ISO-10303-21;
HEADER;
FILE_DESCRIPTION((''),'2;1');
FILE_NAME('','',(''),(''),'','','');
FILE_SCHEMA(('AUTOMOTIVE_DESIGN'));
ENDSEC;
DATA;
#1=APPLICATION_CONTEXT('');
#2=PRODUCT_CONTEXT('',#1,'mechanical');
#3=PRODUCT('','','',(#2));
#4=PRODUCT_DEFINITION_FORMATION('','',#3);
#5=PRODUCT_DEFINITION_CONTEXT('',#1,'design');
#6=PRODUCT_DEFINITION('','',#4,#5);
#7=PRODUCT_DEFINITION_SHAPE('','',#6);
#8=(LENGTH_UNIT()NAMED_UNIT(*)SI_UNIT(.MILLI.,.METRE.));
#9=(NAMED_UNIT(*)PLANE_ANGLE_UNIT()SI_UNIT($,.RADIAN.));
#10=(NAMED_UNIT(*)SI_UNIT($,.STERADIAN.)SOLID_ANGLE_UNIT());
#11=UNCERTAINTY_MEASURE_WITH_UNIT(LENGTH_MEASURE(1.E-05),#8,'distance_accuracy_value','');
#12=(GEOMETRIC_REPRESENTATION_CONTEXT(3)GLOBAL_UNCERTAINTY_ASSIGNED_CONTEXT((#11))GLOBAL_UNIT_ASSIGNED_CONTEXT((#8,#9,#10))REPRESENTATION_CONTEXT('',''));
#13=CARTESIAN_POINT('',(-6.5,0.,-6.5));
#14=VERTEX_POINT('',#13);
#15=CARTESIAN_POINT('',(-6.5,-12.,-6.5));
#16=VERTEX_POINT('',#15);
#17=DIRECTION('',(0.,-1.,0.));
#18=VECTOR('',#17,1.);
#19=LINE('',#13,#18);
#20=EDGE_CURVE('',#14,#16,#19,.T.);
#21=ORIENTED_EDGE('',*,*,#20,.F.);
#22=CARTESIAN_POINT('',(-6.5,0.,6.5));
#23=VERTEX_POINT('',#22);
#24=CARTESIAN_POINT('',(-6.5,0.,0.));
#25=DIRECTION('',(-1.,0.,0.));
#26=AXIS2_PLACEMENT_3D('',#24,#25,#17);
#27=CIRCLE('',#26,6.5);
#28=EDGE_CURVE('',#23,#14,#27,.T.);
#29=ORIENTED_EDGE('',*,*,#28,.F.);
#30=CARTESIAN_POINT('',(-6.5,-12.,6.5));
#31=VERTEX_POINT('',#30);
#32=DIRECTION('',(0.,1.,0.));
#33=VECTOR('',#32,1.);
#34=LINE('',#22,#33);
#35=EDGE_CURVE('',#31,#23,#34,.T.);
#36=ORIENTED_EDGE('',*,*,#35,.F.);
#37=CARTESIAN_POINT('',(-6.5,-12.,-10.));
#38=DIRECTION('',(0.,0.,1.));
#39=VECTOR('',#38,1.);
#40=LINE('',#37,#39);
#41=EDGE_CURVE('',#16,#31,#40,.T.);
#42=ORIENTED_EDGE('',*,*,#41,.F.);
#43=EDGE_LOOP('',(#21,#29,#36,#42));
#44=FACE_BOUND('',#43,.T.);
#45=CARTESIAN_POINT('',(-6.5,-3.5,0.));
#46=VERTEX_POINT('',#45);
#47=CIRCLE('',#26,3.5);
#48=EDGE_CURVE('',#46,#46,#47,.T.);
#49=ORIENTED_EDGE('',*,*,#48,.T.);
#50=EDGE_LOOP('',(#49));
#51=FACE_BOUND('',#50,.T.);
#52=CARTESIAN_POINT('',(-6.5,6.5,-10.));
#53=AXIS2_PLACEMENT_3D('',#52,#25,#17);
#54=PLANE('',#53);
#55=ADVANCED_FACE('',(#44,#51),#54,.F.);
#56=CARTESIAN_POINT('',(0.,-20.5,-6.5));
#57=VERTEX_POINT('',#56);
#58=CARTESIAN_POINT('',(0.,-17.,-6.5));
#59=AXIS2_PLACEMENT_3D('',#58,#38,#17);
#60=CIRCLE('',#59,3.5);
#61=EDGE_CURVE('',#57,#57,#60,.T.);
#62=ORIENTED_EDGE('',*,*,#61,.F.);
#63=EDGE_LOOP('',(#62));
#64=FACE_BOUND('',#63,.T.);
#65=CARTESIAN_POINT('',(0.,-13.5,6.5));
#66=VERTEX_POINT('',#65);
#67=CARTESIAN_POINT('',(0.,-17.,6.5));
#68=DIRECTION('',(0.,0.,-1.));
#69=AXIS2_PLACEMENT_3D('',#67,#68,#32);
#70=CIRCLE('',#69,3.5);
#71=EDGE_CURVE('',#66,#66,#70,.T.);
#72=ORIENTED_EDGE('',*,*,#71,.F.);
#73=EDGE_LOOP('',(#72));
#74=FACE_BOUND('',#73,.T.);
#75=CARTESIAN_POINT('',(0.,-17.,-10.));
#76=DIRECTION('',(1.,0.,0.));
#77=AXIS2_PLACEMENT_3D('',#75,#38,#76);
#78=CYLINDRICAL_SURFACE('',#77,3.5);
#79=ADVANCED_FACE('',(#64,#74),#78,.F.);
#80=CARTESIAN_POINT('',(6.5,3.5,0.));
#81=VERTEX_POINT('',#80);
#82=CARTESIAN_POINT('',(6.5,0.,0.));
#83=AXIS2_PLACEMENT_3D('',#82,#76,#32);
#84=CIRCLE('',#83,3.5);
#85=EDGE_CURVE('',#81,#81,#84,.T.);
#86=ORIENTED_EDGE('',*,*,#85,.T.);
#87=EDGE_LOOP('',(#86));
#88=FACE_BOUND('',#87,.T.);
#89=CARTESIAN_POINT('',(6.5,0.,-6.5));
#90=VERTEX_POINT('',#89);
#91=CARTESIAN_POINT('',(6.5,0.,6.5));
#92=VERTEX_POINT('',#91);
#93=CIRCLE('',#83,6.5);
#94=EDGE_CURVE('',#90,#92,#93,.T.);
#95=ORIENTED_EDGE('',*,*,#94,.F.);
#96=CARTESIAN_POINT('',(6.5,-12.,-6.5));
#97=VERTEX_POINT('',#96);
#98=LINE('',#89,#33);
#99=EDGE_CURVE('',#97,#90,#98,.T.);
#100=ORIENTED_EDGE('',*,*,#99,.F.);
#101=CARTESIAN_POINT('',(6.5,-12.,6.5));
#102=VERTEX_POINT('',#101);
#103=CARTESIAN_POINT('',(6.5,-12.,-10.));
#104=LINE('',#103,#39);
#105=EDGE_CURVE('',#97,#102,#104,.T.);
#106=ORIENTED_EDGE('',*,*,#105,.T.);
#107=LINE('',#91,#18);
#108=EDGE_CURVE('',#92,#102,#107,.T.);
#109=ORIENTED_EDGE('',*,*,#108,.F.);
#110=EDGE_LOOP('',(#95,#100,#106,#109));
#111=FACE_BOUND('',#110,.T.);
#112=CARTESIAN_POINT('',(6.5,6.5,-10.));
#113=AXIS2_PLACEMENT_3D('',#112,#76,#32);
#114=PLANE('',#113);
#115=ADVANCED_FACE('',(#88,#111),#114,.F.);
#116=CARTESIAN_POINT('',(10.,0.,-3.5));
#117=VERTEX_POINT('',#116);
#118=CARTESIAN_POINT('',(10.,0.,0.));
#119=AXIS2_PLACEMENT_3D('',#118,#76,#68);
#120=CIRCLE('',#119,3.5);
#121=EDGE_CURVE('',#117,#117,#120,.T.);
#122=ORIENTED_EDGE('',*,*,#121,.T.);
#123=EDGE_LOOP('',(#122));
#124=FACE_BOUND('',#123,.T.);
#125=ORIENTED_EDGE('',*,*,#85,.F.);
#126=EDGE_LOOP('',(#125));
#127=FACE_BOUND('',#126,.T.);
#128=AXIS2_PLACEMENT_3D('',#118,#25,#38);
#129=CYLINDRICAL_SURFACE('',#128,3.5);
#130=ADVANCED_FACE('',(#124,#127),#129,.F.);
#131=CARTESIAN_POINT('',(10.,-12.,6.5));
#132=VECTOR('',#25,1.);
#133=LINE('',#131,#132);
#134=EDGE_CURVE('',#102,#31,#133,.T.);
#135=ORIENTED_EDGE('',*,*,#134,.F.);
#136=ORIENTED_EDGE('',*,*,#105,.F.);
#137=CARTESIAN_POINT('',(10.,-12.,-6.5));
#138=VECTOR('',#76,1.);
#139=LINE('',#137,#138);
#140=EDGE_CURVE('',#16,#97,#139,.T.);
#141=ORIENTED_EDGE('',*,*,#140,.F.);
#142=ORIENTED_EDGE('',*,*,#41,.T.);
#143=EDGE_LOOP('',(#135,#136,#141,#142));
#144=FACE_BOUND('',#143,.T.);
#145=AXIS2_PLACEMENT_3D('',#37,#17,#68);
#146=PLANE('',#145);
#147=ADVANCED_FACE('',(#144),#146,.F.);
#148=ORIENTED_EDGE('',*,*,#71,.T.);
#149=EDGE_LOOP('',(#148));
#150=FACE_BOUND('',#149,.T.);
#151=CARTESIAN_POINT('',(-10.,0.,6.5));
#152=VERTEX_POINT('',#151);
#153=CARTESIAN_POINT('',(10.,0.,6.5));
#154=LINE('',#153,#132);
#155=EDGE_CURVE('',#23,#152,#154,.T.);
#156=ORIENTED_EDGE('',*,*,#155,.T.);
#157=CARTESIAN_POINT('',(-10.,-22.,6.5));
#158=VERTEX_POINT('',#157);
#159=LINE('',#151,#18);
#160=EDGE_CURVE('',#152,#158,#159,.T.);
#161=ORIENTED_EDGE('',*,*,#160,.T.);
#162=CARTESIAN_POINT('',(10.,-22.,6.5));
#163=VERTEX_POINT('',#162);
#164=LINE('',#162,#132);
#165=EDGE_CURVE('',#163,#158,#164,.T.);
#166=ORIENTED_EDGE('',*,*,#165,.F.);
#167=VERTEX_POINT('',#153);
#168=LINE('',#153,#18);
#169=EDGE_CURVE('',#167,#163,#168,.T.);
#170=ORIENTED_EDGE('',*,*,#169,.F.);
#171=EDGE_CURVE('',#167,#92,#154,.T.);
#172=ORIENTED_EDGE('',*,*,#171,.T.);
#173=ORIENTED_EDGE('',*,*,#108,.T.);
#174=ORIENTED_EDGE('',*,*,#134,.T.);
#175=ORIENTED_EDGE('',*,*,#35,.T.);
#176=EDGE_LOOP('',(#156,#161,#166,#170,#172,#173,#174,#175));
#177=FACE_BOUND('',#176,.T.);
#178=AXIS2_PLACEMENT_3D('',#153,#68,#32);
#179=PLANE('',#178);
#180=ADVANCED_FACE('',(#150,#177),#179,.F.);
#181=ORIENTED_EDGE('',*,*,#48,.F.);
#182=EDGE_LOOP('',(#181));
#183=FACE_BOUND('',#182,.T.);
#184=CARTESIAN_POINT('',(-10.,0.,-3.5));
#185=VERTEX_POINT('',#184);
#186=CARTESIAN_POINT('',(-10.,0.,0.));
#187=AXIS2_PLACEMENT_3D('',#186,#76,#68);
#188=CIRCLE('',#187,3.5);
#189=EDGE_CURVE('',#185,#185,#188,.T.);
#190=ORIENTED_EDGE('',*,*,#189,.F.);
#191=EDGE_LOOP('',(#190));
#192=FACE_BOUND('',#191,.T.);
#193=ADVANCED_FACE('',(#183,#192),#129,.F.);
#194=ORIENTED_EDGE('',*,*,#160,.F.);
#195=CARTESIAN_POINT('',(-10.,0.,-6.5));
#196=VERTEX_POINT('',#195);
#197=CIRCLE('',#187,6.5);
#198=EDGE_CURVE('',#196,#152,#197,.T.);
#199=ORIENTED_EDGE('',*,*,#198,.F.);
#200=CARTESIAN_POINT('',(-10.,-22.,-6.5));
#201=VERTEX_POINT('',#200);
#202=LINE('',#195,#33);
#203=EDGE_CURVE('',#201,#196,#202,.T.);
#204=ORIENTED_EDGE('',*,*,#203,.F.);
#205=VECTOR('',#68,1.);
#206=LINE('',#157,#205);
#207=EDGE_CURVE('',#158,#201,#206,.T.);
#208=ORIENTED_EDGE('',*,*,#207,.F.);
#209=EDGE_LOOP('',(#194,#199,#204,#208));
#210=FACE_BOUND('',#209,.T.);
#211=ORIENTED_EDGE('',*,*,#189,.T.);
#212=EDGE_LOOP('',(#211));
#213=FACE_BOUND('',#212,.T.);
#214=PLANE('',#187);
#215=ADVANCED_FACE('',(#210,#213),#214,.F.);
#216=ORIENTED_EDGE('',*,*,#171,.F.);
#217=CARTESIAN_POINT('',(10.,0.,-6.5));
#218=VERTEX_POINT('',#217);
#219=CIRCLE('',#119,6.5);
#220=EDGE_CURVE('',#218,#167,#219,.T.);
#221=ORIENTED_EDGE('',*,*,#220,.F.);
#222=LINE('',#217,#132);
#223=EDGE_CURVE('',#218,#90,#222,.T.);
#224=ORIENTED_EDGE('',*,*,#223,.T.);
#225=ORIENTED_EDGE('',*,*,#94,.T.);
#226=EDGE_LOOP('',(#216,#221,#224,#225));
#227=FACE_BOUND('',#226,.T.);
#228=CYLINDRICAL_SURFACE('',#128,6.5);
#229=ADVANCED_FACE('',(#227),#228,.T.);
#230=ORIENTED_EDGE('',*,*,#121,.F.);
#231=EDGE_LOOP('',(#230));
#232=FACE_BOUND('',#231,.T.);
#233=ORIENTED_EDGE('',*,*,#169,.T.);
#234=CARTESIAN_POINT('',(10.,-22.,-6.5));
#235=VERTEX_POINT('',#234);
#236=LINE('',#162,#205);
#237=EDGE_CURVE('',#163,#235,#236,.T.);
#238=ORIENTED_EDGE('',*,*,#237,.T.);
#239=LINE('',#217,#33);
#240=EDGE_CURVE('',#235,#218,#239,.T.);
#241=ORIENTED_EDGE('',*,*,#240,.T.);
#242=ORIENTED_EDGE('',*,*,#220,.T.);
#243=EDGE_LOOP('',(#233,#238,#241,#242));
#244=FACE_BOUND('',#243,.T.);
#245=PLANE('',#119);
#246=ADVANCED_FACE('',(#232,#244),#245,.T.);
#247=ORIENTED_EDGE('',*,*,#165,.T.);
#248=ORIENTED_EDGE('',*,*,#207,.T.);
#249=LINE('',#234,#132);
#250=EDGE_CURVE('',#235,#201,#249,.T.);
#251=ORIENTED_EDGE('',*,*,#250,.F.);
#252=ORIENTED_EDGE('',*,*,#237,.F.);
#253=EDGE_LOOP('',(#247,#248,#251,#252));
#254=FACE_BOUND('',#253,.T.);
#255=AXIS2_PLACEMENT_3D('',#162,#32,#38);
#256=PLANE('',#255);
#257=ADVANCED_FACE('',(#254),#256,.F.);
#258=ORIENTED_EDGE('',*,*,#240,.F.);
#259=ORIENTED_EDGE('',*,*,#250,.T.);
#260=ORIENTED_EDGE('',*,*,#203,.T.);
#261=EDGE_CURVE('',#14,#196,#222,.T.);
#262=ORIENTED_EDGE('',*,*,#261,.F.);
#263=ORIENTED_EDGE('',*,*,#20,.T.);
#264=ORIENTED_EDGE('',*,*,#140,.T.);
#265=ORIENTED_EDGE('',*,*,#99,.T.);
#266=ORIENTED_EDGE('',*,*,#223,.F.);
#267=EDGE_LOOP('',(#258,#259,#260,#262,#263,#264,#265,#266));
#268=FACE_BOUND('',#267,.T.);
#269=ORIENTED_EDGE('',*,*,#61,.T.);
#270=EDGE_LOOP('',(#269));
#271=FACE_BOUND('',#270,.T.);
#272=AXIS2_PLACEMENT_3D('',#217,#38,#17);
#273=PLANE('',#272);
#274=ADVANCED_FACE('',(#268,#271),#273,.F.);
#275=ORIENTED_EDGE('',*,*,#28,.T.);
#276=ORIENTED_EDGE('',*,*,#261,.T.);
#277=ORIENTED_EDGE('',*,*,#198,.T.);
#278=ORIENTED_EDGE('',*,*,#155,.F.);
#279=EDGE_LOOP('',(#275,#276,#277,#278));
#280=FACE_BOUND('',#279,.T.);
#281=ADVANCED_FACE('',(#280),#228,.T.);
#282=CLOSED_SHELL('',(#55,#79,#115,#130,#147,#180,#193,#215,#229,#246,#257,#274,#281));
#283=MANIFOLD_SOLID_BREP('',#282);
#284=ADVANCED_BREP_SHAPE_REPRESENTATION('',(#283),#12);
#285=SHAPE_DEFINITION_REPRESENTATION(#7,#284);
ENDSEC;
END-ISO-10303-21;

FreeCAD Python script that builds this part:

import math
import FreeCAD as App
import Part
import Sketcher


def add_polygon(sketch, points):
    """Adds a closed chain of lines whose ends are joined by coincident constraints."""
    first, n = sketch.GeometryCount, len(points)
    for a, b in zip(points, points[1:] + points[:1]):
        sketch.addGeometry(Part.LineSegment(App.Vector(*a, 0), App.Vector(*b, 0)), False)
    for i in range(n):
        sketch.addConstraint(Sketcher.Constraint("Coincident", first + i, 2, first + (i + 1) % n, 1))

doc = App.newDocument("Part")
body = doc.addObject("PartDesign::Body", "Body")

sketch1 = body.newObject("Sketcher::SketchObject", "Sketch")
sketch1.AttachmentSupport = (doc.getObject("YZ_Plane"), [""])
sketch1.MapMode = "FlatFace"
sketch1.addGeometry(Part.LineSegment(App.Vector(0, 6.5, 0), App.Vector(-22, 6.5, 0)), False)
sketch1.addGeometry(Part.LineSegment(App.Vector(-22, 6.5, 0), App.Vector(-22, -6.5, 0)), False)
sketch1.addGeometry(Part.LineSegment(App.Vector(-22, -6.5, 0), App.Vector(0, -6.5, 0)), False)
sketch1.addGeometry(Part.ArcOfCircle(Part.Circle(App.Vector(0, 0, 0), App.Vector(0, 0, 1), 6.5), math.radians(-90), math.radians(90)), False)
sketch1.addGeometry(Part.Circle(App.Vector(0, 0, 0), App.Vector(0, 0, 1), 3.5), False)
sketch1.addConstraint(Sketcher.Constraint("Coincident", 0, 2, 1, 1))
sketch1.addConstraint(Sketcher.Constraint("Coincident", 1, 2, 2, 1))
sketch1.addConstraint(Sketcher.Constraint("Tangent", 2, 2, 3, 1))
sketch1.addConstraint(Sketcher.Constraint("Tangent", 3, 2, 0, 1))
sketch1.addConstraint(Sketcher.Constraint("Horizontal", 0))
sketch1.addConstraint(Sketcher.Constraint("Vertical", 1))
sketch1.addConstraint(Sketcher.Constraint("Horizontal", 2))
sketch1.addConstraint(Sketcher.Constraint("Coincident", 3, 3, -1, 1))
sketch1.addConstraint(Sketcher.Constraint("Coincident", 4, 3, -1, 1))
sketch1.addConstraint(Sketcher.Constraint("Diameter", 4, 7.0))
sketch1.addConstraint(Sketcher.Constraint("Radius", 3, 6.5))
sketch1.addConstraint(Sketcher.Constraint("DistanceX", 0, 2, 0, 1, 22.0))
pad1 = body.newObject("PartDesign::Pad", "Pad")
pad1.Profile = sketch1
pad1.Length = 20
pad1.Midplane = True

sketch2 = body.newObject("Sketcher::SketchObject", "Sketch001")
sketch2.AttachmentSupport = (doc.getObject("XY_Plane"), [""])
sketch2.MapMode = "FlatFace"
sketch2.addGeometry(Part.Circle(App.Vector(0, -17, 0), App.Vector(0, 0, 1), 3.5), False)
sketch2.addConstraint(Sketcher.Constraint("PointOnObject", 0, 3, -2))
sketch2.addConstraint(Sketcher.Constraint("Diameter", 0, 7.0))
sketch2.addConstraint(Sketcher.Constraint("DistanceY", 0, 3, -1, 1, 17.0))
pocket1 = body.newObject("PartDesign::Pocket", "Pocket")
pocket1.Profile = sketch2
pocket1.Length = 20
pocket1.Midplane = True

sketch3 = body.newObject("Sketcher::SketchObject", "Sketch002")
sketch3.AttachmentSupport = (doc.getObject("XY_Plane"), [""])
sketch3.MapMode = "FlatFace"
add_polygon(sketch3, [(-6.5, 6.5), (-6.5, -12), (6.5, -12), (6.5, 6.5)])
sketch3.addConstraint(Sketcher.Constraint("Vertical", 0))
sketch3.addConstraint(Sketcher.Constraint("Horizontal", 1))
sketch3.addConstraint(Sketcher.Constraint("Vertical", 2))
sketch3.addConstraint(Sketcher.Constraint("Horizontal", 3))
sketch3.addConstraint(Sketcher.Constraint("DistanceX", 1, 1, 1, 2, 13.0))
sketch3.addConstraint(Sketcher.Constraint("DistanceY", 0, 2, 0, 1, 18.5))
sketch3.addConstraint(Sketcher.Constraint("DistanceY", 0, 2, -1, 1, 12.0))
sketch3.addConstraint(Sketcher.Constraint("DistanceX", 0, 2, -1, 1, 6.5))
pocket2 = body.newObject("PartDesign::Pocket", "Pocket001")
pocket2.Profile = sketch3
pocket2.Length = 20
pocket2.Midplane = True

doc.recompute()
